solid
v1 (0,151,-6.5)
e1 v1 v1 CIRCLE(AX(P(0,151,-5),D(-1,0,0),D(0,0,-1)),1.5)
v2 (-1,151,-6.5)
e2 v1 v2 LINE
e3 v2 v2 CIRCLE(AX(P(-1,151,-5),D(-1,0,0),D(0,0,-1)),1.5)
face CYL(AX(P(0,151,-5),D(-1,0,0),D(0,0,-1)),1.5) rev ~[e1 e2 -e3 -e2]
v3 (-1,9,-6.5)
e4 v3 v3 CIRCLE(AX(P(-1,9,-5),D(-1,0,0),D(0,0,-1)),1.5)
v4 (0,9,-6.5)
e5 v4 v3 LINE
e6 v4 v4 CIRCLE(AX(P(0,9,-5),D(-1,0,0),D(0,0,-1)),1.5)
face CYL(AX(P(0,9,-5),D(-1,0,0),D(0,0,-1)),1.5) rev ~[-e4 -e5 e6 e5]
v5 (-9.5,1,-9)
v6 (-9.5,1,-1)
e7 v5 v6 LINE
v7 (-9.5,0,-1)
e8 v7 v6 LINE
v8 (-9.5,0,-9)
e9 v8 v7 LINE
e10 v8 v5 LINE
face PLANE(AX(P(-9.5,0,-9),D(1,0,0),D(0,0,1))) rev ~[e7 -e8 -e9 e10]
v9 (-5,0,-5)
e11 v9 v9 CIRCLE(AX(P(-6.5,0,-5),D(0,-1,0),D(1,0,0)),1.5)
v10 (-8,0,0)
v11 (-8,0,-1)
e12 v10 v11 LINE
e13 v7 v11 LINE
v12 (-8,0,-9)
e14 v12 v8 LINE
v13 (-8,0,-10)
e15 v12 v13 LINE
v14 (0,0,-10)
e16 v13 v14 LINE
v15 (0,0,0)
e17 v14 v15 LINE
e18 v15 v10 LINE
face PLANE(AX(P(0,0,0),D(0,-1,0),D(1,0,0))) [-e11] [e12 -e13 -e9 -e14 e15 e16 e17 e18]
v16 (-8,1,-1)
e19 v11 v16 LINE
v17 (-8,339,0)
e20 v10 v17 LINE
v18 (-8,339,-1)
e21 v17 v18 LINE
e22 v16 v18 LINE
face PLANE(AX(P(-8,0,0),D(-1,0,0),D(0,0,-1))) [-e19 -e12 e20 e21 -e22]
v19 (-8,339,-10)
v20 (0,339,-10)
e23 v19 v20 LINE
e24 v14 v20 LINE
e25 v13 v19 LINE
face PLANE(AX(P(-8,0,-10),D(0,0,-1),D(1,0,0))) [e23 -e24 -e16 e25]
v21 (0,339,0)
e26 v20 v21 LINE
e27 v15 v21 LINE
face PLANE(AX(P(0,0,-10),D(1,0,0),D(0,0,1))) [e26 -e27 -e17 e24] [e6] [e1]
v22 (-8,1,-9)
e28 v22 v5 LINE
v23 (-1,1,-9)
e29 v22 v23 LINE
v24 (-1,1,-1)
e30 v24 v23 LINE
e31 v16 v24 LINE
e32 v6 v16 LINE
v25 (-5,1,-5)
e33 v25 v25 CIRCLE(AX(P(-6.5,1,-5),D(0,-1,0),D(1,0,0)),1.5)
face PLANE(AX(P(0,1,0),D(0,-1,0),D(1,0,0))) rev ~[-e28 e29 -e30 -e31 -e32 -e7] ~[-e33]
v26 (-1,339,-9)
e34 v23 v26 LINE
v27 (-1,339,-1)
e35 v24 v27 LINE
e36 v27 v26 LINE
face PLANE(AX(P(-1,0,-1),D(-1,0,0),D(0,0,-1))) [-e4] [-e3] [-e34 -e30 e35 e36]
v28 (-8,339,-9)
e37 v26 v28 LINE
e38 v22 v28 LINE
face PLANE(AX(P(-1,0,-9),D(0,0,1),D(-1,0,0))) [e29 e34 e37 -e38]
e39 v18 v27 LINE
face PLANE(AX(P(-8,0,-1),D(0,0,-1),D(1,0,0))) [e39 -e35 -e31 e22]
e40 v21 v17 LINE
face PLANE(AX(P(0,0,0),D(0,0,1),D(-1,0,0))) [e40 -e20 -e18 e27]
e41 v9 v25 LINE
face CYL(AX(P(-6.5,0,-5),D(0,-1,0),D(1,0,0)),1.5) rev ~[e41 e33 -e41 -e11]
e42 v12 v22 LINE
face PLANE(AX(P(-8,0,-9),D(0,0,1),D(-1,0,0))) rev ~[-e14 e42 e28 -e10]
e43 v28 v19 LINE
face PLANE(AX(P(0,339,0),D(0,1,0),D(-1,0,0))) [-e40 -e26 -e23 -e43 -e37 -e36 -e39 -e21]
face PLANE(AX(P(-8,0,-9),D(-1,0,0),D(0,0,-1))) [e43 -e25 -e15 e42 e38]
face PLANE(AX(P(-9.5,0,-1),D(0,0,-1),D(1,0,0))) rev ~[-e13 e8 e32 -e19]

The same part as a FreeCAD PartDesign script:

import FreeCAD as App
import Part
import Sketcher

doc = App.newDocument("Part")
body = doc.addObject("PartDesign::Body", "Body")

# Sketch on XZ plane
sketch1 = body.newObject("Sketcher::SketchObject", "Sketch")
sketch1.AttachmentSupport = (doc.getObject("XZ_Plane"), [""])
sketch1.MapMode = "FlatFace"
sketch1.addGeometry([
    Part.LineSegment(App.Vector(-8, 0, 0), App.Vector(0, 0, 0)),  # 0
    Part.LineSegment(App.Vector(0, 0, 0), App.Vector(0, -10, 0)),  # 1
    Part.LineSegment(App.Vector(0, -10, 0), App.Vector(-8, -10, 0)),  # 2
    Part.LineSegment(App.Vector(-8, -10, 0), App.Vector(-8, -9, 0)),  # 3
    Part.LineSegment(App.Vector(-8, -9, 0), App.Vector(-1, -9, 0)),  # 4
    Part.LineSegment(App.Vector(-1, -9, 0), App.Vector(-1, -1, 0)),  # 5
    Part.LineSegment(App.Vector(-1, -1, 0), App.Vector(-8, -1, 0)),  # 6
    Part.LineSegment(App.Vector(-8, -1, 0), App.Vector(-8, 0, 0)),  # 7
], False)
sketch1.addConstraint([
    Sketcher.Constraint("Coincident", 0, 2, 1, 1),
    Sketcher.Constraint("Coincident", 1, 2, 2, 1),
    Sketcher.Constraint("Coincident", 2, 2, 3, 1),
    Sketcher.Constraint("Coincident", 3, 2, 4, 1),
    Sketcher.Constraint("Coincident", 4, 2, 5, 1),
    Sketcher.Constraint("Coincident", 5, 2, 6, 1),
    Sketcher.Constraint("Coincident", 6, 2, 7, 1),
    Sketcher.Constraint("Coincident", 7, 2, 0, 1),
    Sketcher.Constraint("Horizontal", 0),
    Sketcher.Constraint("Vertical", 1),
    Sketcher.Constraint("Horizontal", 2),
    Sketcher.Constraint("Vertical", 3),
    Sketcher.Constraint("Horizontal", 4),
    Sketcher.Constraint("Vertical", 5),
    Sketcher.Constraint("Horizontal", 6),
    Sketcher.Constraint("Vertical", 7),
    Sketcher.Constraint("Coincident", 0, 2, -1, 1),
    Sketcher.Constraint("Vertical", 3, 2, 6, 2),
    Sketcher.Constraint("Equal", 2, 5),
    Sketcher.Constraint("Equal", 3, 7),
    Sketcher.Constraint("DistanceX", 0, 1, 0, 2, 8.0),
    Sketcher.Constraint("DistanceY", 1, 2, 1, 1, 10.0),
    Sketcher.Constraint("DistanceX", 4, 2, -1, 1, 1.0),
])
pad1 = body.newObject("PartDesign::Pad", "Pad")
pad1.Profile = sketch1
pad1.Length = 339
pad1.Reversed = True

# Sketch on YZ plane
sketch2 = body.newObject("Sketcher::SketchObject", "Sketch001")
sketch2.AttachmentSupport = (doc.getObject("YZ_Plane"), [""])
sketch2.MapMode = "FlatFace"
sketch2.addGeometry(Part.Circle(App.Vector(9, -5, 0), App.Vector(0, 0, 1), 1.5), False)
sketch2.addConstraint([
    Sketcher.Constraint("Diameter", 0, 3.0),
    Sketcher.Constraint("DistanceX", -1, 1, 0, 3, 9.0),
    Sketcher.Constraint("DistanceY", 0, 3, -1, 1, 5.0),
])
doc.recompute()
hole = body.newObject("PartDesign::Hole", "Hole")
hole.Profile = sketch2
hole.ThreadType = "None"
hole.Diameter = 3
hole.DepthType = "Dimension"
hole.Depth = 8
hole.DrillPoint = "Angled"
hole.DrillPointAngle = 118

# Sketch on YZ plane
sketch3 = body.newObject("Sketcher::SketchObject", "Sketch002")
sketch3.AttachmentSupport = (doc.getObject("YZ_Plane"), [""])
sketch3.MapMode = "FlatFace"
sketch3.addGeometry(Part.Circle(App.Vector(151, -5, 0), App.Vector(0, 0, 1), 1.5), False)
sketch3.addConstraint([
    Sketcher.Constraint("Diameter", 0, 3.0),
    Sketcher.Constraint("DistanceX", -1, 1, 0, 3, 151.0),
    Sketcher.Constraint("DistanceY", 0, 3, -1, 1, 5.0),
])
doc.recompute()
hole2 = body.newObject("PartDesign::Hole", "Hole001")
hole2.Profile = sketch3
hole2.ThreadType = "None"
hole2.Diameter = 3
hole2.DepthType = "Dimension"
hole2.Depth = 8
hole2.DrillPoint = "Angled"
hole2.DrillPointAngle = 118

# Sketch on XZ plane
sketch4 = body.newObject("Sketcher::SketchObject", "Sketch003")
sketch4.AttachmentSupport = (doc.getObject("XZ_Plane"), [""])
sketch4.MapMode = "FlatFace"
sketch4.addGeometry([
    Part.LineSegment(App.Vector(-9.5, -9, 0), App.Vector(-1, -9, 0)),  # 0
    Part.LineSegment(App.Vector(-1, -9, 0), App.Vector(-1, -1, 0)),  # 1
    Part.LineSegment(App.Vector(-1, -1, 0), App.Vector(-9.5, -1, 0)),  # 2
    Part.LineSegment(App.Vector(-9.5, -1, 0), App.Vector(-9.5, -9, 0)),  # 3
    Part.Circle(App.Vector(-6.5, -5, 0), App.Vector(0, 0, 1), 1.5),  # 4
], False)
sketch4.addConstraint([
    Sketcher.Constraint("Coincident", 0, 2, 1, 1),
    Sketcher.Constraint("Coincident", 1, 2, 2, 1),
    Sketcher.Constraint("Coincident", 2, 2, 3, 1),
    Sketcher.Constraint("Coincident", 3, 2, 0, 1),
    Sketcher.Constraint("Horizontal", 0),
    Sketcher.Constraint("Vertical", 1),
    Sketcher.Constraint("Horizontal", 2),
    Sketcher.Constraint("Vertical", 3),
    Sketcher.Constraint("Diameter", 4, 3.0),
    Sketcher.Constraint("DistanceY", 4, 3, -1, 1, 5.0),
    Sketcher.Constraint("DistanceX", 2, 2, 4, 3, 3.0),
    Sketcher.Constraint("DistanceY", 1, 1, 1, 2, 8.0),
    Sketcher.Constraint("DistanceX", 0, 1, 0, 2, 8.5),
    Sketcher.Constraint("DistanceX", 0, 2, -1, 1, 1.0),
    Sketcher.Constraint("DistanceY", 0, 2, -1, 1, 9.0),
])
pad2 = body.newObject("PartDesign::Pad", "Pad001")
pad2.Profile = sketch4
pad2.Length = 1
pad2.Reversed = True

doc.recompute()
